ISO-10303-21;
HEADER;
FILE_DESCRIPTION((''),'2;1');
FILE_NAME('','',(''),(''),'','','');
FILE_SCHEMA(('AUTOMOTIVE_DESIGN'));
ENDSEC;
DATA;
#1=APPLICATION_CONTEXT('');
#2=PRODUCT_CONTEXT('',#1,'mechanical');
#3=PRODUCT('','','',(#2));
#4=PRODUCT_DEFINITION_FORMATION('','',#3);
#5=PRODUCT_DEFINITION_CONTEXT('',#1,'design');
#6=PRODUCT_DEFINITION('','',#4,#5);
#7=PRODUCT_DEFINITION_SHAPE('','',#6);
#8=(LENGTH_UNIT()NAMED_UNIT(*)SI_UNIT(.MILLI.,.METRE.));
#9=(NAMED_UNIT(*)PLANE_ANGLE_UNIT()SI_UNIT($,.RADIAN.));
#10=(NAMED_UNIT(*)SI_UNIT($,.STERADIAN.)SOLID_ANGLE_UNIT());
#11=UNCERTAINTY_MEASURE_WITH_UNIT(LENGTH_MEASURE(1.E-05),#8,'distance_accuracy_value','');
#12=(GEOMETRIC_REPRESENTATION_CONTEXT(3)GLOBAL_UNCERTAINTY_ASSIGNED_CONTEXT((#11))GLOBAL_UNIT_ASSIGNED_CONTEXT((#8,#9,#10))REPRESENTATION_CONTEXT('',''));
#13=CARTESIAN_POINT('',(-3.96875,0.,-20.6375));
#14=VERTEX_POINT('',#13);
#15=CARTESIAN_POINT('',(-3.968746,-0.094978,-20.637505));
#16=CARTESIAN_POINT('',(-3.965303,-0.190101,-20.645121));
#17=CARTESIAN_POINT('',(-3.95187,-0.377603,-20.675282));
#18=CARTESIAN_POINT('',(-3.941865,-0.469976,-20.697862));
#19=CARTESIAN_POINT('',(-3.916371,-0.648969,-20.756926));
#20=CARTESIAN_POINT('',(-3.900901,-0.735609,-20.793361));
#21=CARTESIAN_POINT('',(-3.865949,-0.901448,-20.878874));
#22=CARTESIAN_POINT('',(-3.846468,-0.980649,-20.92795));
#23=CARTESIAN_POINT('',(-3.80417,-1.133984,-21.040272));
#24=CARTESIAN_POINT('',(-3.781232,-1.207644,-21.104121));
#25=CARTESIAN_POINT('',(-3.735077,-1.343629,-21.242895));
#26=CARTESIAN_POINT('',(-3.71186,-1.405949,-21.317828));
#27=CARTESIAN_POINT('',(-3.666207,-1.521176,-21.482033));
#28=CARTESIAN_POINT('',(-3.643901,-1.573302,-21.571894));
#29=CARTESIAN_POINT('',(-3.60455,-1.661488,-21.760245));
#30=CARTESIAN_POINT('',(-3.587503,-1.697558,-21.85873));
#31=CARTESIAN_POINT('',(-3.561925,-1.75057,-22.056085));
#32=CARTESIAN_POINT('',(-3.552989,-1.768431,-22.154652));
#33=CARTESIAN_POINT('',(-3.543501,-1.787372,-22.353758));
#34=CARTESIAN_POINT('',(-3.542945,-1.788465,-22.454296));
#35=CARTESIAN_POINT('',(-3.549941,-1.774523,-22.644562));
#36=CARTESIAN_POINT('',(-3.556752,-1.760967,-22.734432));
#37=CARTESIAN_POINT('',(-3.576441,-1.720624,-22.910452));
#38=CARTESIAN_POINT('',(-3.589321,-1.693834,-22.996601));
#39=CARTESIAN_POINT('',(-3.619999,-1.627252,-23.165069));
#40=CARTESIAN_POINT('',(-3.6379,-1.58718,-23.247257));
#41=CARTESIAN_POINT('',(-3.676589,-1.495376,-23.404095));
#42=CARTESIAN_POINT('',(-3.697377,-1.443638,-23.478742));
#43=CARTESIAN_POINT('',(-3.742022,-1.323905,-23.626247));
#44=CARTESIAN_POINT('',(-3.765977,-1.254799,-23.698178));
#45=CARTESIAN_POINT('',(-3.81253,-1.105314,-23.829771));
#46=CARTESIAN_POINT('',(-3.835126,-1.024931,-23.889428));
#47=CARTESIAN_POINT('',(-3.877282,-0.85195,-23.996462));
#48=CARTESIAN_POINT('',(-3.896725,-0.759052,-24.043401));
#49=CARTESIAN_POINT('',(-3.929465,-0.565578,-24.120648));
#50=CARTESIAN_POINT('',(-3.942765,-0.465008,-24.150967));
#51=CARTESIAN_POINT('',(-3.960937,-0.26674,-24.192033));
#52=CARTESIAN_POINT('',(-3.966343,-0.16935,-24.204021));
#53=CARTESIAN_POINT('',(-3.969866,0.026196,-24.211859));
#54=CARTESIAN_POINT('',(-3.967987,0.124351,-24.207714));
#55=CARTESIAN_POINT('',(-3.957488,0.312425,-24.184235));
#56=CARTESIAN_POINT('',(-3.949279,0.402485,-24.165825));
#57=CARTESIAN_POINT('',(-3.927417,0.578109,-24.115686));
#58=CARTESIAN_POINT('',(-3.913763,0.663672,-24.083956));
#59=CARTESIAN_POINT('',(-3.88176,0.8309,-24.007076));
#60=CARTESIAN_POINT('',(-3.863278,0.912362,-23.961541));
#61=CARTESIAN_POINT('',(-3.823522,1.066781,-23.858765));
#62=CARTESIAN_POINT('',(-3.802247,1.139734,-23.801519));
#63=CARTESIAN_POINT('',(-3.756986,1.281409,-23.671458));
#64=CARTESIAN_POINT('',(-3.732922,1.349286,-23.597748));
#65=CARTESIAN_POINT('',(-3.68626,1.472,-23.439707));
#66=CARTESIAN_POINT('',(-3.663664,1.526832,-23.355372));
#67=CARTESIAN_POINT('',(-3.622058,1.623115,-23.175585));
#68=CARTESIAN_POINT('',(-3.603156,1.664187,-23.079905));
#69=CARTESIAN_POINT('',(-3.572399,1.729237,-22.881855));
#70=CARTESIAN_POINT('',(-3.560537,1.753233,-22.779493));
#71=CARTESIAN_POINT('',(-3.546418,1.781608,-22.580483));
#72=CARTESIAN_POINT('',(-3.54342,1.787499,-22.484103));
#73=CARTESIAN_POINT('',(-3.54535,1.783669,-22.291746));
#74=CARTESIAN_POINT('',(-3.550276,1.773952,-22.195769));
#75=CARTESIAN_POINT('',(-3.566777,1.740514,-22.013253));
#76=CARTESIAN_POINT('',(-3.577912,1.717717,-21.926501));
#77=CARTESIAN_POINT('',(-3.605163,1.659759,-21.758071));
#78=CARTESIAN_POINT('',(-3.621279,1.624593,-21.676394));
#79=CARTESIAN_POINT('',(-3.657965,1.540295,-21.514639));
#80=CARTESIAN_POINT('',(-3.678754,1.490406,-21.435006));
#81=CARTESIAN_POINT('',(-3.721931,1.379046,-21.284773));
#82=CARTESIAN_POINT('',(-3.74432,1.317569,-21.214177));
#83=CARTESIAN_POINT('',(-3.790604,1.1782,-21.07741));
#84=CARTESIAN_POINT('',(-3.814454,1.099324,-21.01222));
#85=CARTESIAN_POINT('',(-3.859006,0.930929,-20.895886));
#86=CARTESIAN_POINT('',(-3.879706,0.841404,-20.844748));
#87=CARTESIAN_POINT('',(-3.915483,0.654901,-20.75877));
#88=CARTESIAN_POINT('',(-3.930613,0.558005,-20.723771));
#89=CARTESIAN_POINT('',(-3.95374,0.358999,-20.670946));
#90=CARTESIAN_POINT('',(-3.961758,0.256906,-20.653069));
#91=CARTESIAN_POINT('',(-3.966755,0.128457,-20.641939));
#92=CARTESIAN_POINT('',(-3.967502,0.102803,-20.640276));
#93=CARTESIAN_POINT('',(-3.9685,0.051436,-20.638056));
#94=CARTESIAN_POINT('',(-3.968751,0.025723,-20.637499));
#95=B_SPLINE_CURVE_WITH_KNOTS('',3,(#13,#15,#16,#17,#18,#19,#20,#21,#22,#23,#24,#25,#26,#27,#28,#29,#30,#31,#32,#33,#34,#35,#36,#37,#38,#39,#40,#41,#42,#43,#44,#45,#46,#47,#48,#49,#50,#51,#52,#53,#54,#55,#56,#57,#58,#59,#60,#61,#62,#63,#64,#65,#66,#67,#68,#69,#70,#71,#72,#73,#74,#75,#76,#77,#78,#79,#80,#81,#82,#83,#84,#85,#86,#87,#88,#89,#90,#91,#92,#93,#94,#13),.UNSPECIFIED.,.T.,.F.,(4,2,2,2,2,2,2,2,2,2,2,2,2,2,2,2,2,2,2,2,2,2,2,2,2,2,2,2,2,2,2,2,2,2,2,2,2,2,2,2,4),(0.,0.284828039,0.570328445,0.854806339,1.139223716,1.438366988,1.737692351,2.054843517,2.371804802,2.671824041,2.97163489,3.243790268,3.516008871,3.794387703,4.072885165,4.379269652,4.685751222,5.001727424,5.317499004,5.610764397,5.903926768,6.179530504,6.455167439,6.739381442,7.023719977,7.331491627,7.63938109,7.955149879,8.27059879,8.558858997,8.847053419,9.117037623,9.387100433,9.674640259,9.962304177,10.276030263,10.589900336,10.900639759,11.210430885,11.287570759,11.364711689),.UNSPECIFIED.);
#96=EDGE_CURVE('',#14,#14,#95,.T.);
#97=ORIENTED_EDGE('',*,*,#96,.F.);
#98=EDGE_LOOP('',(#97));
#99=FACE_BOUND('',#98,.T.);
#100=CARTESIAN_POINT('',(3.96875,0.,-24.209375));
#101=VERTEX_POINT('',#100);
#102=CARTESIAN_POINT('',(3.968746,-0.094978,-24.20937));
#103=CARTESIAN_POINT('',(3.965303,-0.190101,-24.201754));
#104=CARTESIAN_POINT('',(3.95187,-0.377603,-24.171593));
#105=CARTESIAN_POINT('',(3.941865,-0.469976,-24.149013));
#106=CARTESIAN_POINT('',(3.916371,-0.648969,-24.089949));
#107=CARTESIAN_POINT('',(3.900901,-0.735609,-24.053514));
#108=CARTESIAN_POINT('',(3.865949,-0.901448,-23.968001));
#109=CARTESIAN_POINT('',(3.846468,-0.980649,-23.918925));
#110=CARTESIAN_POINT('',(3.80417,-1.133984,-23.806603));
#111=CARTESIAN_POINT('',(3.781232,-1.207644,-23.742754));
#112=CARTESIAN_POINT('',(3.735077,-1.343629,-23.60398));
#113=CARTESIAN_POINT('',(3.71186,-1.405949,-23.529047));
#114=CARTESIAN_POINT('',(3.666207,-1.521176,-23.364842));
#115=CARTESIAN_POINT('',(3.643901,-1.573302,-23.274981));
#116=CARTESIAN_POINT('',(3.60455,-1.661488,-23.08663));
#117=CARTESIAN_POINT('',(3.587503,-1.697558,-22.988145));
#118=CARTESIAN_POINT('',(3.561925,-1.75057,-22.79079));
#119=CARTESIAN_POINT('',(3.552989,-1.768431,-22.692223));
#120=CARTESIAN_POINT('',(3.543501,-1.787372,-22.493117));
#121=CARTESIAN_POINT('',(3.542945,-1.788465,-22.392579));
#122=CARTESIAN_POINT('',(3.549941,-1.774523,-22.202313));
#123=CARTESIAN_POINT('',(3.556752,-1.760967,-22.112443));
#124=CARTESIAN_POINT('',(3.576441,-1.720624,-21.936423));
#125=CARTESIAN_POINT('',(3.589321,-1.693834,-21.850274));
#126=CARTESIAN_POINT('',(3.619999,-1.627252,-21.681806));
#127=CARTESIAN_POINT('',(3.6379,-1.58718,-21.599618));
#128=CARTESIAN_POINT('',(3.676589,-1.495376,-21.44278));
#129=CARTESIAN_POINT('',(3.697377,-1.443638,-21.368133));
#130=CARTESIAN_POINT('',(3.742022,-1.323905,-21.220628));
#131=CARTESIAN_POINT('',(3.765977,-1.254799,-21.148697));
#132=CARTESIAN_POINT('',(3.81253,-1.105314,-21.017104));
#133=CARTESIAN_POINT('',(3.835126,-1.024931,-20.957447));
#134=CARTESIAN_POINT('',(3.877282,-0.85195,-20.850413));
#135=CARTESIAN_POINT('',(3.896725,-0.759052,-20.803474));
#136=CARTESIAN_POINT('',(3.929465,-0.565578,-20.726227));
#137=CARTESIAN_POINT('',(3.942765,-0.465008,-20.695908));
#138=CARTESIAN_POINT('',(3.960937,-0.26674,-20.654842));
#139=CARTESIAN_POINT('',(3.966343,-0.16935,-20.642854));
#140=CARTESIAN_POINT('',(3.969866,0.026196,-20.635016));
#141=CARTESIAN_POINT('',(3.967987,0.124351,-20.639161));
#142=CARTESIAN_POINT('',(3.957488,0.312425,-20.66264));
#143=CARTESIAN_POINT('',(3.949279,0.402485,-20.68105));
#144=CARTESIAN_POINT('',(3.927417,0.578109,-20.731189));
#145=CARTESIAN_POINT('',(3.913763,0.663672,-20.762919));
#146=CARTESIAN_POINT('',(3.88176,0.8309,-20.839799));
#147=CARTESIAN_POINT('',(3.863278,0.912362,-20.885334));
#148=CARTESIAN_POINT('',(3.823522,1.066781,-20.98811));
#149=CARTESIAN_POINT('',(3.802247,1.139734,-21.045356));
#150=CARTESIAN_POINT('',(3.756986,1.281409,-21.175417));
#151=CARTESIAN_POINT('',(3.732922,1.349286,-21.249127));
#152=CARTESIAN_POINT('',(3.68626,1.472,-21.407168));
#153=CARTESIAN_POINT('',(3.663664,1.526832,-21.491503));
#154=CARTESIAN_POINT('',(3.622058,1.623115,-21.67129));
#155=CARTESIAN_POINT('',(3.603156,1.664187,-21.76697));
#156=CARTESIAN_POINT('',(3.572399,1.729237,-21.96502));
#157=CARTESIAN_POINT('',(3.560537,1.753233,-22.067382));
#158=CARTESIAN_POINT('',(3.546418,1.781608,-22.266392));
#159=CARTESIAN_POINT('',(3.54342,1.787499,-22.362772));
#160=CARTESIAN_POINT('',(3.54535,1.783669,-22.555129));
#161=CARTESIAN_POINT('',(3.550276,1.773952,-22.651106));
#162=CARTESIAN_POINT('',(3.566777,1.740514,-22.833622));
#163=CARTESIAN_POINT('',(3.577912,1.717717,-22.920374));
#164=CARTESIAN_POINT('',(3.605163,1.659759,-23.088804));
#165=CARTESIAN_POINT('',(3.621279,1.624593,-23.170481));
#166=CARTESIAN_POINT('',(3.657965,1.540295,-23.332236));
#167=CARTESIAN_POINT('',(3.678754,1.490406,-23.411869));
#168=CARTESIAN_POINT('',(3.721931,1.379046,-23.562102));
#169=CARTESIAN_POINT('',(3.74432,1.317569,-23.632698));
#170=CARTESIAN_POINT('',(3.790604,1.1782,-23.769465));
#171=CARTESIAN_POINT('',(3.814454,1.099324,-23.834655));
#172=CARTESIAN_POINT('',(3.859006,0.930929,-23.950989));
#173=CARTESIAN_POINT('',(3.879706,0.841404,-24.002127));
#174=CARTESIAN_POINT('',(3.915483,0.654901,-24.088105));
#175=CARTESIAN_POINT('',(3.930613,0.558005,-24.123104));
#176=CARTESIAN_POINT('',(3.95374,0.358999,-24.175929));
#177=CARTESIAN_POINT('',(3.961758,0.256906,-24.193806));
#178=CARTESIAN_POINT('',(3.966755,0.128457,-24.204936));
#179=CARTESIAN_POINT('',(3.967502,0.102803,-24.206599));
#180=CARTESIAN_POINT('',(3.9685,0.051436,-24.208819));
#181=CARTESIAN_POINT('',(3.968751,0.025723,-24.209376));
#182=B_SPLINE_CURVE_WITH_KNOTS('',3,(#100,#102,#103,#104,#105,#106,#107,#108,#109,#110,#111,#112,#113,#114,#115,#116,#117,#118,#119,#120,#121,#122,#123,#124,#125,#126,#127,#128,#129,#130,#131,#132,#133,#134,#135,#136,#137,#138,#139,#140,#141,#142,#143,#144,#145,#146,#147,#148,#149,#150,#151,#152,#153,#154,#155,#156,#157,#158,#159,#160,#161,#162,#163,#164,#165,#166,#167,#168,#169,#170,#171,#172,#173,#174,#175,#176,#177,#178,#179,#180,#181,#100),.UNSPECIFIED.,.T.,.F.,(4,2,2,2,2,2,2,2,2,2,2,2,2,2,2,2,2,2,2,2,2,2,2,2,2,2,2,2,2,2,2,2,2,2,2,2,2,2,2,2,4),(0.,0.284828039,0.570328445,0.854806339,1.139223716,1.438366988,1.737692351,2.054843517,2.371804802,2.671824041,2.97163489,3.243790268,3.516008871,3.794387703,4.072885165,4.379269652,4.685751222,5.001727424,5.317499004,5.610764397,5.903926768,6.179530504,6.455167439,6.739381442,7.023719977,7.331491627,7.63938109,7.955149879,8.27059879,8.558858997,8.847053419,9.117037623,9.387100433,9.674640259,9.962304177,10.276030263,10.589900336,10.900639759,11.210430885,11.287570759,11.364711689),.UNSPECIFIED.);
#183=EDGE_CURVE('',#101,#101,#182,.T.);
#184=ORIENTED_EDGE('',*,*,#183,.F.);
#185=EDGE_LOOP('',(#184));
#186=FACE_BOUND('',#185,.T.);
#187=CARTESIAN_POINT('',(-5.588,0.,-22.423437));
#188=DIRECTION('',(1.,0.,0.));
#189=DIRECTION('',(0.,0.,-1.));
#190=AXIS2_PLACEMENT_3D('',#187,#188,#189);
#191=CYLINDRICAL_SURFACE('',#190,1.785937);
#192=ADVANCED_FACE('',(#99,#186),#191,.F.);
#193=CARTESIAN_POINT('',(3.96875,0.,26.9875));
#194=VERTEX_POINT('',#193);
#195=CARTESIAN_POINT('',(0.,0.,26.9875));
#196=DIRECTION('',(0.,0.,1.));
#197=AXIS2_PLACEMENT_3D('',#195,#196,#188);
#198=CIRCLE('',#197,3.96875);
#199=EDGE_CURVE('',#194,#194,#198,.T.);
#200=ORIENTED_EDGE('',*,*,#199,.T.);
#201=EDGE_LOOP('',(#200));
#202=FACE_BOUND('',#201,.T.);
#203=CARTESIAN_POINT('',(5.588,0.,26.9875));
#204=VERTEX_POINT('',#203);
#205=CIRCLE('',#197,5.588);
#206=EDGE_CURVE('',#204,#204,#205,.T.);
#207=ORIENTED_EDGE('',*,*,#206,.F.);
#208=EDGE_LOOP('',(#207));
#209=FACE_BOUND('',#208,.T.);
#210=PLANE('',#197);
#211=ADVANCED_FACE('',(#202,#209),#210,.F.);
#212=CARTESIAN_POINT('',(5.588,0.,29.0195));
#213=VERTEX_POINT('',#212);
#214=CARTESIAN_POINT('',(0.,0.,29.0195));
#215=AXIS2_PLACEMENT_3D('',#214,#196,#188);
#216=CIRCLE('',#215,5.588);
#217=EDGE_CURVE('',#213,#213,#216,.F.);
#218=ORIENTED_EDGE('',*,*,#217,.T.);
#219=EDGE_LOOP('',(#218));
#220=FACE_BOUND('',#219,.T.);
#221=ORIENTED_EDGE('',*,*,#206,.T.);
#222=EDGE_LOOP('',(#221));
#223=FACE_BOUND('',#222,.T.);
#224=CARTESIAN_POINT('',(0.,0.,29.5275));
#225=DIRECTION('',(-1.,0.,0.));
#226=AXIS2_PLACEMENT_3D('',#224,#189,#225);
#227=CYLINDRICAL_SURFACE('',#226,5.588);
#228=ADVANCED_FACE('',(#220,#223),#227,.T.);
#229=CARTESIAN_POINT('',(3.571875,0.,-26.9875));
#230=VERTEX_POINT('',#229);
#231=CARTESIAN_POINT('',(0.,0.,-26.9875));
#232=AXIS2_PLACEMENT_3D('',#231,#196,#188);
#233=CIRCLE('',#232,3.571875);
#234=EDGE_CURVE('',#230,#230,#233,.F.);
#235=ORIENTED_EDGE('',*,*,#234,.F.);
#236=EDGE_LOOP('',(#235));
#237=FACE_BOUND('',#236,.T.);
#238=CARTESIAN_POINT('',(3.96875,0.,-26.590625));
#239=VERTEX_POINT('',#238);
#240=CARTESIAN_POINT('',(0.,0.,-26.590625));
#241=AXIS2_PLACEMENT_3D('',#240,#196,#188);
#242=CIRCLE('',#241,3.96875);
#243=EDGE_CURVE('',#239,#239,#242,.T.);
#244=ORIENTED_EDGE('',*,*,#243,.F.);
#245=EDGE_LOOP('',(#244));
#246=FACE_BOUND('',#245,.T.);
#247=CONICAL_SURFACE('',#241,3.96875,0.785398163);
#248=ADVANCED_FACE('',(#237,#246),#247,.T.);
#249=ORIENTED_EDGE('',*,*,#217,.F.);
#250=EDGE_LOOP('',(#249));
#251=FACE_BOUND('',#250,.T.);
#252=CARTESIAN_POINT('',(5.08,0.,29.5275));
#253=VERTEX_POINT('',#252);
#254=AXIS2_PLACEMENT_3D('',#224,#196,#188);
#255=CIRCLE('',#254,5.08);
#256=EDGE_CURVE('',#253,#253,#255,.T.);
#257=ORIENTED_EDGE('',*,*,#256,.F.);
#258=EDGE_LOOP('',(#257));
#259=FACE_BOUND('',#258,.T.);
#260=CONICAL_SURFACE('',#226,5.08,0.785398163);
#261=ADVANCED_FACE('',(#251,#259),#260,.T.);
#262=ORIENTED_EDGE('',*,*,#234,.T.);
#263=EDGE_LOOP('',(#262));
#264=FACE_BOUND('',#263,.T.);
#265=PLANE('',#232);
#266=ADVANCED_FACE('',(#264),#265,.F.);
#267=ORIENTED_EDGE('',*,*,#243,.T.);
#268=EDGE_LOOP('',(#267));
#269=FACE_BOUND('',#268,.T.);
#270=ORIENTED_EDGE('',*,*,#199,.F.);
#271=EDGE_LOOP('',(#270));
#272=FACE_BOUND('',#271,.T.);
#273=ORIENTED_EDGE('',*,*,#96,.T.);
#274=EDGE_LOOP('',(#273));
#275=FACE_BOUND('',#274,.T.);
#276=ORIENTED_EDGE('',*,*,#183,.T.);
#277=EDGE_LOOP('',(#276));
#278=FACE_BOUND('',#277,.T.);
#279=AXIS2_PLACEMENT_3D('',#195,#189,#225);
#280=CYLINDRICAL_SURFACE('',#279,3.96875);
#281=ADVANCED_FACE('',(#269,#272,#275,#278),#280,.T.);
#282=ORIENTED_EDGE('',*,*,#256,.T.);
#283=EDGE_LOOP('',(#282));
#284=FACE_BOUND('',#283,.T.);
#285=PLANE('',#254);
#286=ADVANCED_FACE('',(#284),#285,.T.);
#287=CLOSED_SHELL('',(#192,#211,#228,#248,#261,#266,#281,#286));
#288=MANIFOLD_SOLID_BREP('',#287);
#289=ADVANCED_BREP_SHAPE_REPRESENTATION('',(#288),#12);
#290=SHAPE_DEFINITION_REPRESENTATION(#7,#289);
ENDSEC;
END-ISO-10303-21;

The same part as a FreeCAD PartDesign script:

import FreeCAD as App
import Part
import Sketcher
Q = App.Units.Quantity


def edges_at(feature, points):
    """Names of the edges that pass closest to the given points."""
    edges = feature.Shape.Edges
    near = lambda p: min(range(len(edges)), key=lambda i: edges[i].distToShape(Part.Vertex(*p))[0])
    return sorted({f"Edge{near(p) + 1}" for p in points})

doc = App.newDocument("Part")
body = doc.addObject("PartDesign::Body", "Body")

sketch1 = doc.addObject("Sketcher::SketchObject", "Sketch")
body.addObject(sketch1)
sketch1.AttachmentSupport = (doc.XY_Plane, [""])
sketch1.MapMode = "FlatFace"
sketch1.addGeometry(Part.Circle(App.Vector(0, 0, 0), App.Vector(0, 0, 1), 3.96875), False)
sketch1.addConstraint([
    Sketcher.Constraint("Coincident", 0, 3, -1, 1),
    Sketcher.Constraint("Diameter", 0, Q("0.3125 in")),
])
pad1 = doc.addObject("PartDesign::Pad", "Pad")
body.addObject(pad1)
pad1.Profile = sketch1
pad1.Length = Q("2.125 in")
pad1.Midplane = True

sketch2 = doc.addObject("Sketcher::SketchObject", "Sketch001")
body.addObject(sketch2)
sketch2.AttachmentSupport = (doc.XY_Plane, [""])
sketch2.MapMode = "FlatFace"
sketch2.AttachmentOffset = App.Placement(App.Vector(0, 0, 1.0625 * 25.4), App.Rotation())
sketch2.addGeometry(Part.Circle(App.Vector(0, 0, 0), App.Vector(0, 0, 1), 5.588), False)
sketch2.addConstraint([
    Sketcher.Constraint("Coincident", 0, 3, -1, 1),
    Sketcher.Constraint("Diameter", 0, Q("0.44 in")),
])
pad2 = doc.addObject("PartDesign::Pad", "Pad001")
body.addObject(pad2)
pad2.Profile = sketch2
pad2.Length = Q("0.1 in")
doc.recompute()

chamfer = doc.addObject("PartDesign::Chamfer", "Chamfer")
body.addObject(chamfer)
chamfer.Base = (pad2, edges_at(pad2, [(-5.588, 0, 29.527)]))
chamfer.Size = Q("0.02 in")

sketch3 = doc.addObject("Sketcher::SketchObject", "Sketch002")
body.addObject(sketch3)
sketch3.AttachmentSupport = (doc.YZ_Plane, [""])
sketch3.MapMode = "FlatFace"
sketch3.addGeometry(Part.Circle(App.Vector(0, -22.423437, 0), App.Vector(0, 0, 1), 1.785937), False)
sketch3.addConstraint([
    Sketcher.Constraint("PointOnObject", 0, 3, -2),
    Sketcher.Constraint("Diameter", 0, Q("0.140625 in")),
    Sketcher.Constraint("DistanceY", 0, 3, -1, 1, 22.423437),
])
pocket1 = doc.addObject("PartDesign::Pocket", "Pocket")
body.addObject(pocket1)
pocket1.Profile = sketch3
pocket1.Type = "ThroughAll"
pocket1.Midplane = True
doc.recompute()

chamfer2 = doc.addObject("PartDesign::Chamfer", "Chamfer001")
body.addObject(chamfer2)
chamfer2.Base = (pocket1, edges_at(pocket1, [(-3.969, 0, -26.988)]))
chamfer2.Size = Q("0.015625 in")

doc.recompute()
